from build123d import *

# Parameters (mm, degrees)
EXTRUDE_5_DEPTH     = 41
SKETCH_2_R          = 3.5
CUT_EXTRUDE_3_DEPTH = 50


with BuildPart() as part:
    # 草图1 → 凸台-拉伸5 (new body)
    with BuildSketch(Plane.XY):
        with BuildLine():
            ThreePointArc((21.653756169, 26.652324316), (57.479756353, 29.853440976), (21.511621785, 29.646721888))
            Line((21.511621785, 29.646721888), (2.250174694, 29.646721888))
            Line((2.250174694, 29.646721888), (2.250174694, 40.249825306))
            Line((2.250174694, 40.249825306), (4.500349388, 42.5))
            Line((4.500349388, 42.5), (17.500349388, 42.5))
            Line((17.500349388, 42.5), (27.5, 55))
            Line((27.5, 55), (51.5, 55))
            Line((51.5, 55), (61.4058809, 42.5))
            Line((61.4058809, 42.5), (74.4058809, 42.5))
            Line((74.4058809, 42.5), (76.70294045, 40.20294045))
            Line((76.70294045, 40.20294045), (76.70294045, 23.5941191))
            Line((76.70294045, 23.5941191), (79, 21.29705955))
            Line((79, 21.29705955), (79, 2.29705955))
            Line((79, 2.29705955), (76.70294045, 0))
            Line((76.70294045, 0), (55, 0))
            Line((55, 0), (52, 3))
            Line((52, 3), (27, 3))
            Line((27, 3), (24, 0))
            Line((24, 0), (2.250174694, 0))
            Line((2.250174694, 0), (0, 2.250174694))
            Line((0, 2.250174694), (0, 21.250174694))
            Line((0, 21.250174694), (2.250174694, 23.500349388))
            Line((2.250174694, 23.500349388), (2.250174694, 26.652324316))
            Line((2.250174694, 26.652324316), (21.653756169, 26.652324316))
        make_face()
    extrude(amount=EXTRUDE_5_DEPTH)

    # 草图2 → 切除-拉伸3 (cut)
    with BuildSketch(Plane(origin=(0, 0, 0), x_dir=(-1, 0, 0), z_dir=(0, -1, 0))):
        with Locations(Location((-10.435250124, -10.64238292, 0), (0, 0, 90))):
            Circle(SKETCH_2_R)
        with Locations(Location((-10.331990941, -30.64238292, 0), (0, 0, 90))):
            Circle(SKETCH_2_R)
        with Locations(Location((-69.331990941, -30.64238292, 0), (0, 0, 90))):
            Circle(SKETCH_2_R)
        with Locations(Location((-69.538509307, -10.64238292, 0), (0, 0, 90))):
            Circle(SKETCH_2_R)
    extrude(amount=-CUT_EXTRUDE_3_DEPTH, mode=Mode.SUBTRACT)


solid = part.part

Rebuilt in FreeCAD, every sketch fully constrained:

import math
import FreeCAD as App
import Part
import Sketcher
Q = App.Units.Quantity

doc = App.newDocument("Part")
body = doc.addObject("PartDesign::Body", "Body")

sketch1 = body.newObject("Sketcher::SketchObject", "Sketch")
sketch1.AttachmentSupport = (doc.getObject("XY_Plane"), [""])
sketch1.MapMode = "FlatFace"
sketch1.addGeometry([
    Part.ArcOfCircle(Part.Circle(App.Vector(39.5, 29, 0), App.Vector(0, 0, 1), 18), math.radians(-172.505765), math.radians(177.940977)),
    Part.LineSegment(App.Vector(21.653756, 26.652324, 0), App.Vector(2.250175, 26.652324, 0)),
    Part.LineSegment(App.Vector(2.250175, 26.652324, 0), App.Vector(2.250175, 23.500349, 0)),
    Part.LineSegment(App.Vector(2.250175, 23.500349, 0), App.Vector(0, 21.250175, 0)),
    Part.LineSegment(App.Vector(0, 21.250175, 0), App.Vector(0, 2.250175, 0)),
    Part.LineSegment(App.Vector(0, 2.250175, 0), App.Vector(2.250175, 0, 0)),
    Part.LineSegment(App.Vector(2.250175, 0, 0), App.Vector(24, 0, 0)),
    Part.LineSegment(App.Vector(24, 0, 0), App.Vector(27, 3, 0)),
    Part.LineSegment(App.Vector(27, 3, 0), App.Vector(52, 3, 0)),
    Part.LineSegment(App.Vector(52, 3, 0), App.Vector(55, 0, 0)),
    Part.LineSegment(App.Vector(55, 0, 0), App.Vector(76.70294, 0, 0)),
    Part.LineSegment(App.Vector(76.70294, 0, 0), App.Vector(79, 2.29706, 0)),
    Part.LineSegment(App.Vector(79, 2.29706, 0), App.Vector(79, 21.29706, 0)),
    Part.LineSegment(App.Vector(79, 21.29706, 0), App.Vector(76.70294, 23.594119, 0)),
    Part.LineSegment(App.Vector(76.70294, 23.594119, 0), App.Vector(76.70294, 40.20294, 0)),
    Part.LineSegment(App.Vector(76.70294, 40.20294, 0), App.Vector(74.405881, 42.5, 0)),
    Part.LineSegment(App.Vector(74.405881, 42.5, 0), App.Vector(61.405881, 42.5, 0)),
    Part.LineSegment(App.Vector(61.405881, 42.5, 0), App.Vector(51.5, 55, 0)),
    Part.LineSegment(App.Vector(51.5, 55, 0), App.Vector(27.5, 55, 0)),
    Part.LineSegment(App.Vector(27.5, 55, 0), App.Vector(17.500349, 42.5, 0)),
    Part.LineSegment(App.Vector(17.500349, 42.5, 0), App.Vector(4.500349, 42.5, 0)),
    Part.LineSegment(App.Vector(4.500349, 42.5, 0), App.Vector(2.250175, 40.249825, 0)),
    Part.LineSegment(App.Vector(2.250175, 40.249825, 0), App.Vector(2.250175, 29.646722, 0)),
    Part.LineSegment(App.Vector(2.250175, 29.646722, 0), App.Vector(21.511622, 29.646722, 0)),
], False)
sketch1.addConstraint([
    Sketcher.Constraint("Coincident", 0, 1, 1, 1),
    Sketcher.Constraint("Coincident", 1, 2, 2, 1),
    Sketcher.Constraint("Coincident", 2, 2, 3, 1),
    Sketcher.Constraint("Coincident", 3, 2, 4, 1),
    Sketcher.Constraint("Coincident", 4, 2, 5, 1),
    Sketcher.Constraint("Coincident", 5, 2, 6, 1),
    Sketcher.Constraint("Coincident", 6, 2, 7, 1),
    Sketcher.Constraint("Coincident", 7, 2, 8, 1),
    Sketcher.Constraint("Coincident", 8, 2, 9, 1),
    Sketcher.Constraint("Coincident", 9, 2, 10, 1),
    Sketcher.Constraint("Coincident", 10, 2, 11, 1),
    Sketcher.Constraint("Coincident", 11, 2, 12, 1),
    Sketcher.Constraint("Coincident", 12, 2, 13, 1),
    Sketcher.Constraint("Coincident", 13, 2, 14, 1),
    Sketcher.Constraint("Coincident", 14, 2, 15, 1),
    Sketcher.Constraint("Coincident", 15, 2, 16, 1),
    Sketcher.Constraint("Coincident", 16, 2, 17, 1),
    Sketcher.Constraint("Coincident", 17, 2, 18, 1),
    Sketcher.Constraint("Coincident", 18, 2, 19, 1),
    Sketcher.Constraint("Coincident", 19, 2, 20, 1),
    Sketcher.Constraint("Coincident", 20, 2, 21, 1),
    Sketcher.Constraint("Coincident", 21, 2, 22, 1),
    Sketcher.Constraint("Coincident", 22, 2, 23, 1),
    Sketcher.Constraint("Coincident", 23, 2, 0, 2),
    Sketcher.Constraint("Horizontal", 1),
    Sketcher.Constraint("Vertical", 2),
    Sketcher.Constraint("Vertical", 4),
    Sketcher.Constraint("Horizontal", 6),
    Sketcher.Constraint("Horizontal", 8),
    Sketcher.Constraint("Horizontal", 10),
    Sketcher.Constraint("Vertical", 12),
    Sketcher.Constraint("Vertical", 14),
    Sketcher.Constraint("Horizontal", 16),
    Sketcher.Constraint("Horizontal", 18),
    Sketcher.Constraint("Horizontal", 20),
    Sketcher.Constraint("Vertical", 22),
    Sketcher.Constraint("Horizontal", 23),
    Sketcher.Constraint("PointOnObject", 3, 2, -2),
    Sketcher.Constraint("PointOnObject", 5, 2, -1),
    Sketcher.Constraint("PointOnObject", 9, 2, -1),
    Sketcher.Constraint("Perpendicular", 3, 5),
    Sketcher.Constraint("Perpendicular", 5, 7),
    Sketcher.Constraint("Perpendicular", 7, 9),
    Sketcher.Constraint("Perpendicular", 9, 11),
    Sketcher.Constraint("Perpendicular", 11, 13),
    Sketcher.Constraint("Parallel", 13, 15),
    Sketcher.Constraint("Perpendicular", 15, 21),
    Sketcher.Constraint("Horizontal", 16, 2, 19, 2),
    Sketcher.Constraint("Vertical", 2, 2, 5, 2),
    Sketcher.Constraint("Vertical", 10, 2, 13, 2),
    Sketcher.Constraint("Vertical", 5, 2, 21, 2),
    Sketcher.Constraint("Equal", 16, 20),
    Sketcher.Constraint("Equal", 4, 12),
    Sketcher.Constraint("Equal", 3, 5),
    Sketcher.Constraint("Equal", 13, 15),
    Sketcher.Constraint("Equal", 5, 21),
    Sketcher.Constraint("Radius", 0, Q("18 mm")),
    Sketcher.Constraint("DistanceX", 8, 1, 8, 2, Q("25 mm")),
    Sketcher.Constraint("DistanceX", 16, 2, 16, 1, Q("13 mm")),
    Sketcher.Constraint("DistanceX", 18, 2, 18, 1, Q("24 mm")),
    Sketcher.Constraint("DistanceY", 4, 2, 4, 1, Q("19 mm")),
    Sketcher.Constraint("DistanceY", -1, 1, 0, 3, Q("29 mm")),
    Sketcher.Constraint("DistanceX", -1, 1, 6, 2, Q("24 mm")),
    Sketcher.Constraint("DistanceX", -1, 1, 7, 2, Q("27 mm")),
    Sketcher.Constraint("DistanceX", -1, 1, 11, 2, Q("79 mm")),
    Sketcher.Constraint("DistanceY", -1, 1, 17, 2, Q("55 mm")),
    Sketcher.Constraint("DistanceX", 0, 3, 17, 2, Q("12 mm")),
    Sketcher.Constraint("DistanceX", -1, 1, 0, 3, Q("39.5 mm")),
    Sketcher.Constraint("DistanceY", -1, 1, 15, 2, Q("42.5 mm")),
    Sketcher.Constraint("DistanceX", 1, 2, 1, 1, Q("19.403581 mm")),
    Sketcher.Constraint("DistanceX", 10, 1, 10, 2, Q("21.70294 mm")),
    Sketcher.Constraint("DistanceY", 1, 2, 21, 2, Q("13.597501 mm")),
    Sketcher.Constraint("DistanceX", 23, 1, 23, 2, Q("19.261447 mm")),
])
pad1 = body.newObject("PartDesign::Pad", "Pad")
pad1.Profile = sketch1
pad1.Length = 41

sketch2 = body.newObject("Sketcher::SketchObject", "Sketch001")
sketch2.AttachmentSupport = (doc.getObject("XZ_Plane"), [""])
sketch2.MapMode = "FlatFace"
sketch2.addGeometry([
    Part.Circle(App.Vector(10.43525, 10.642383, 0), App.Vector(0, 0, 1), 3.5),
    Part.Circle(App.Vector(10.331991, 30.642383, 0), App.Vector(0, 0, 1), 3.5),
    Part.Circle(App.Vector(69.331991, 30.642383, 0), App.Vector(0, 0, 1), 3.5),
    Part.Circle(App.Vector(69.538509, 10.642383, 0), App.Vector(0, 0, 1), 3.5),
], False)
sketch2.addConstraint([
    Sketcher.Constraint("Equal", 0, 1),
    Sketcher.Constraint("Equal", 1, 2),
    Sketcher.Constraint("Equal", 2, 3),
    Sketcher.Constraint("Horizontal", 1, 3, 2, 3),
    Sketcher.Constraint("Horizontal", 0, 3, 3, 3),
    Sketcher.Constraint("Diameter", 0, Q("7 mm")),
    Sketcher.Constraint("DistanceY", 0, 3, 1, 3, Q("20 mm")),
    Sketcher.Constraint("DistanceX", 1, 3, 2, 3, Q("59 mm")),
    Sketcher.Constraint("DistanceX", -1, 1, 0, 3, Q("10.43525 mm")),
    Sketcher.Constraint("DistanceX", -1, 1, 1, 3, Q("10.331991 mm")),
    Sketcher.Constraint("DistanceX", -1, 1, 3, 3, Q("69.538509 mm")),
    Sketcher.Constraint("DistanceY", -1, 1, 0, 3, Q("10.642383 mm")),
])
pocket1 = body.newObject("PartDesign::Pocket", "Pocket")
pocket1.Profile = sketch2
pocket1.Length = 50

doc.recompute()
